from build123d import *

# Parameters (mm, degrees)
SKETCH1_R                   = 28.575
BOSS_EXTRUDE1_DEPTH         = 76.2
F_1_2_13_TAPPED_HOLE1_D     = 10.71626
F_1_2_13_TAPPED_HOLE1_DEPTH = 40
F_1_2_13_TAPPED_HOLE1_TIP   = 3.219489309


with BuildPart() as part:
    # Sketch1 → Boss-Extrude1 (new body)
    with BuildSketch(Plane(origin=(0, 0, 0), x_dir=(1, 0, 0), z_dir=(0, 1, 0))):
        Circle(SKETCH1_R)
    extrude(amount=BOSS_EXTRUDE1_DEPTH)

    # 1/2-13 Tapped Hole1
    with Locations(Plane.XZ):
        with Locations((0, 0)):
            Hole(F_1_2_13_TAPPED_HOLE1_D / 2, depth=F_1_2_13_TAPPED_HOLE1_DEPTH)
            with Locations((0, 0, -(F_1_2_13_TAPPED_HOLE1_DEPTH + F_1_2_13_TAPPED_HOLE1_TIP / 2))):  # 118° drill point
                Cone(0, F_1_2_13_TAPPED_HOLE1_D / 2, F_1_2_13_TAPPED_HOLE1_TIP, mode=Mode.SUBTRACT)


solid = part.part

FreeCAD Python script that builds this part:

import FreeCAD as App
import Part
import Sketcher
Q = App.Units.Quantity

doc = App.newDocument("Part")
body = doc.addObject("PartDesign::Body", "Body")

# Sketch on XZ plane
sketch1 = body.newObject("Sketcher::SketchObject", "Sketch")
sketch1.AttachmentSupport = (doc.getObject("XZ_Plane"), [""])
sketch1.MapMode = "FlatFace"
sketch1.addGeometry(Part.Circle(App.Vector(0, 0, 0), App.Vector(0, 0, 1), 29), False)
sketch1.addConstraint([
    Sketcher.Constraint("Coincident", 0, 3, -1, 1),
    Sketcher.Constraint("Diameter", 0, Q("2.25 in")),
])
pad1 = body.newObject("PartDesign::Pad", "Pad")
pad1.Profile = sketch1
pad1.Length = Q("3 in")
pad1.Reversed = True

# Sketch on XZ plane
sketch2 = body.newObject("Sketcher::SketchObject", "Sketch001")
sketch2.AttachmentSupport = (doc.getObject("XZ_Plane"), [""])
sketch2.MapMode = "FlatFace"
sketch2.addGeometry(Part.Circle(App.Vector(0, 0, 0), App.Vector(0, 0, 1), 5), False)
sketch2.addConstraint([
    Sketcher.Constraint("Coincident", 0, 3, -1, 1),
    Sketcher.Constraint("Diameter", 0, Q("0.4219 in")),
])
doc.recompute()
hole = body.newObject("PartDesign::Hole", "Hole")
hole.Profile = sketch2
hole.ThreadType = "None"
hole.Diameter = Q("0.4219 in")
hole.DepthType = "Dimension"
hole.Depth = 40
hole.DrillPoint = "Angled"
hole.DrillPointAngle = 118

doc.recompute()
